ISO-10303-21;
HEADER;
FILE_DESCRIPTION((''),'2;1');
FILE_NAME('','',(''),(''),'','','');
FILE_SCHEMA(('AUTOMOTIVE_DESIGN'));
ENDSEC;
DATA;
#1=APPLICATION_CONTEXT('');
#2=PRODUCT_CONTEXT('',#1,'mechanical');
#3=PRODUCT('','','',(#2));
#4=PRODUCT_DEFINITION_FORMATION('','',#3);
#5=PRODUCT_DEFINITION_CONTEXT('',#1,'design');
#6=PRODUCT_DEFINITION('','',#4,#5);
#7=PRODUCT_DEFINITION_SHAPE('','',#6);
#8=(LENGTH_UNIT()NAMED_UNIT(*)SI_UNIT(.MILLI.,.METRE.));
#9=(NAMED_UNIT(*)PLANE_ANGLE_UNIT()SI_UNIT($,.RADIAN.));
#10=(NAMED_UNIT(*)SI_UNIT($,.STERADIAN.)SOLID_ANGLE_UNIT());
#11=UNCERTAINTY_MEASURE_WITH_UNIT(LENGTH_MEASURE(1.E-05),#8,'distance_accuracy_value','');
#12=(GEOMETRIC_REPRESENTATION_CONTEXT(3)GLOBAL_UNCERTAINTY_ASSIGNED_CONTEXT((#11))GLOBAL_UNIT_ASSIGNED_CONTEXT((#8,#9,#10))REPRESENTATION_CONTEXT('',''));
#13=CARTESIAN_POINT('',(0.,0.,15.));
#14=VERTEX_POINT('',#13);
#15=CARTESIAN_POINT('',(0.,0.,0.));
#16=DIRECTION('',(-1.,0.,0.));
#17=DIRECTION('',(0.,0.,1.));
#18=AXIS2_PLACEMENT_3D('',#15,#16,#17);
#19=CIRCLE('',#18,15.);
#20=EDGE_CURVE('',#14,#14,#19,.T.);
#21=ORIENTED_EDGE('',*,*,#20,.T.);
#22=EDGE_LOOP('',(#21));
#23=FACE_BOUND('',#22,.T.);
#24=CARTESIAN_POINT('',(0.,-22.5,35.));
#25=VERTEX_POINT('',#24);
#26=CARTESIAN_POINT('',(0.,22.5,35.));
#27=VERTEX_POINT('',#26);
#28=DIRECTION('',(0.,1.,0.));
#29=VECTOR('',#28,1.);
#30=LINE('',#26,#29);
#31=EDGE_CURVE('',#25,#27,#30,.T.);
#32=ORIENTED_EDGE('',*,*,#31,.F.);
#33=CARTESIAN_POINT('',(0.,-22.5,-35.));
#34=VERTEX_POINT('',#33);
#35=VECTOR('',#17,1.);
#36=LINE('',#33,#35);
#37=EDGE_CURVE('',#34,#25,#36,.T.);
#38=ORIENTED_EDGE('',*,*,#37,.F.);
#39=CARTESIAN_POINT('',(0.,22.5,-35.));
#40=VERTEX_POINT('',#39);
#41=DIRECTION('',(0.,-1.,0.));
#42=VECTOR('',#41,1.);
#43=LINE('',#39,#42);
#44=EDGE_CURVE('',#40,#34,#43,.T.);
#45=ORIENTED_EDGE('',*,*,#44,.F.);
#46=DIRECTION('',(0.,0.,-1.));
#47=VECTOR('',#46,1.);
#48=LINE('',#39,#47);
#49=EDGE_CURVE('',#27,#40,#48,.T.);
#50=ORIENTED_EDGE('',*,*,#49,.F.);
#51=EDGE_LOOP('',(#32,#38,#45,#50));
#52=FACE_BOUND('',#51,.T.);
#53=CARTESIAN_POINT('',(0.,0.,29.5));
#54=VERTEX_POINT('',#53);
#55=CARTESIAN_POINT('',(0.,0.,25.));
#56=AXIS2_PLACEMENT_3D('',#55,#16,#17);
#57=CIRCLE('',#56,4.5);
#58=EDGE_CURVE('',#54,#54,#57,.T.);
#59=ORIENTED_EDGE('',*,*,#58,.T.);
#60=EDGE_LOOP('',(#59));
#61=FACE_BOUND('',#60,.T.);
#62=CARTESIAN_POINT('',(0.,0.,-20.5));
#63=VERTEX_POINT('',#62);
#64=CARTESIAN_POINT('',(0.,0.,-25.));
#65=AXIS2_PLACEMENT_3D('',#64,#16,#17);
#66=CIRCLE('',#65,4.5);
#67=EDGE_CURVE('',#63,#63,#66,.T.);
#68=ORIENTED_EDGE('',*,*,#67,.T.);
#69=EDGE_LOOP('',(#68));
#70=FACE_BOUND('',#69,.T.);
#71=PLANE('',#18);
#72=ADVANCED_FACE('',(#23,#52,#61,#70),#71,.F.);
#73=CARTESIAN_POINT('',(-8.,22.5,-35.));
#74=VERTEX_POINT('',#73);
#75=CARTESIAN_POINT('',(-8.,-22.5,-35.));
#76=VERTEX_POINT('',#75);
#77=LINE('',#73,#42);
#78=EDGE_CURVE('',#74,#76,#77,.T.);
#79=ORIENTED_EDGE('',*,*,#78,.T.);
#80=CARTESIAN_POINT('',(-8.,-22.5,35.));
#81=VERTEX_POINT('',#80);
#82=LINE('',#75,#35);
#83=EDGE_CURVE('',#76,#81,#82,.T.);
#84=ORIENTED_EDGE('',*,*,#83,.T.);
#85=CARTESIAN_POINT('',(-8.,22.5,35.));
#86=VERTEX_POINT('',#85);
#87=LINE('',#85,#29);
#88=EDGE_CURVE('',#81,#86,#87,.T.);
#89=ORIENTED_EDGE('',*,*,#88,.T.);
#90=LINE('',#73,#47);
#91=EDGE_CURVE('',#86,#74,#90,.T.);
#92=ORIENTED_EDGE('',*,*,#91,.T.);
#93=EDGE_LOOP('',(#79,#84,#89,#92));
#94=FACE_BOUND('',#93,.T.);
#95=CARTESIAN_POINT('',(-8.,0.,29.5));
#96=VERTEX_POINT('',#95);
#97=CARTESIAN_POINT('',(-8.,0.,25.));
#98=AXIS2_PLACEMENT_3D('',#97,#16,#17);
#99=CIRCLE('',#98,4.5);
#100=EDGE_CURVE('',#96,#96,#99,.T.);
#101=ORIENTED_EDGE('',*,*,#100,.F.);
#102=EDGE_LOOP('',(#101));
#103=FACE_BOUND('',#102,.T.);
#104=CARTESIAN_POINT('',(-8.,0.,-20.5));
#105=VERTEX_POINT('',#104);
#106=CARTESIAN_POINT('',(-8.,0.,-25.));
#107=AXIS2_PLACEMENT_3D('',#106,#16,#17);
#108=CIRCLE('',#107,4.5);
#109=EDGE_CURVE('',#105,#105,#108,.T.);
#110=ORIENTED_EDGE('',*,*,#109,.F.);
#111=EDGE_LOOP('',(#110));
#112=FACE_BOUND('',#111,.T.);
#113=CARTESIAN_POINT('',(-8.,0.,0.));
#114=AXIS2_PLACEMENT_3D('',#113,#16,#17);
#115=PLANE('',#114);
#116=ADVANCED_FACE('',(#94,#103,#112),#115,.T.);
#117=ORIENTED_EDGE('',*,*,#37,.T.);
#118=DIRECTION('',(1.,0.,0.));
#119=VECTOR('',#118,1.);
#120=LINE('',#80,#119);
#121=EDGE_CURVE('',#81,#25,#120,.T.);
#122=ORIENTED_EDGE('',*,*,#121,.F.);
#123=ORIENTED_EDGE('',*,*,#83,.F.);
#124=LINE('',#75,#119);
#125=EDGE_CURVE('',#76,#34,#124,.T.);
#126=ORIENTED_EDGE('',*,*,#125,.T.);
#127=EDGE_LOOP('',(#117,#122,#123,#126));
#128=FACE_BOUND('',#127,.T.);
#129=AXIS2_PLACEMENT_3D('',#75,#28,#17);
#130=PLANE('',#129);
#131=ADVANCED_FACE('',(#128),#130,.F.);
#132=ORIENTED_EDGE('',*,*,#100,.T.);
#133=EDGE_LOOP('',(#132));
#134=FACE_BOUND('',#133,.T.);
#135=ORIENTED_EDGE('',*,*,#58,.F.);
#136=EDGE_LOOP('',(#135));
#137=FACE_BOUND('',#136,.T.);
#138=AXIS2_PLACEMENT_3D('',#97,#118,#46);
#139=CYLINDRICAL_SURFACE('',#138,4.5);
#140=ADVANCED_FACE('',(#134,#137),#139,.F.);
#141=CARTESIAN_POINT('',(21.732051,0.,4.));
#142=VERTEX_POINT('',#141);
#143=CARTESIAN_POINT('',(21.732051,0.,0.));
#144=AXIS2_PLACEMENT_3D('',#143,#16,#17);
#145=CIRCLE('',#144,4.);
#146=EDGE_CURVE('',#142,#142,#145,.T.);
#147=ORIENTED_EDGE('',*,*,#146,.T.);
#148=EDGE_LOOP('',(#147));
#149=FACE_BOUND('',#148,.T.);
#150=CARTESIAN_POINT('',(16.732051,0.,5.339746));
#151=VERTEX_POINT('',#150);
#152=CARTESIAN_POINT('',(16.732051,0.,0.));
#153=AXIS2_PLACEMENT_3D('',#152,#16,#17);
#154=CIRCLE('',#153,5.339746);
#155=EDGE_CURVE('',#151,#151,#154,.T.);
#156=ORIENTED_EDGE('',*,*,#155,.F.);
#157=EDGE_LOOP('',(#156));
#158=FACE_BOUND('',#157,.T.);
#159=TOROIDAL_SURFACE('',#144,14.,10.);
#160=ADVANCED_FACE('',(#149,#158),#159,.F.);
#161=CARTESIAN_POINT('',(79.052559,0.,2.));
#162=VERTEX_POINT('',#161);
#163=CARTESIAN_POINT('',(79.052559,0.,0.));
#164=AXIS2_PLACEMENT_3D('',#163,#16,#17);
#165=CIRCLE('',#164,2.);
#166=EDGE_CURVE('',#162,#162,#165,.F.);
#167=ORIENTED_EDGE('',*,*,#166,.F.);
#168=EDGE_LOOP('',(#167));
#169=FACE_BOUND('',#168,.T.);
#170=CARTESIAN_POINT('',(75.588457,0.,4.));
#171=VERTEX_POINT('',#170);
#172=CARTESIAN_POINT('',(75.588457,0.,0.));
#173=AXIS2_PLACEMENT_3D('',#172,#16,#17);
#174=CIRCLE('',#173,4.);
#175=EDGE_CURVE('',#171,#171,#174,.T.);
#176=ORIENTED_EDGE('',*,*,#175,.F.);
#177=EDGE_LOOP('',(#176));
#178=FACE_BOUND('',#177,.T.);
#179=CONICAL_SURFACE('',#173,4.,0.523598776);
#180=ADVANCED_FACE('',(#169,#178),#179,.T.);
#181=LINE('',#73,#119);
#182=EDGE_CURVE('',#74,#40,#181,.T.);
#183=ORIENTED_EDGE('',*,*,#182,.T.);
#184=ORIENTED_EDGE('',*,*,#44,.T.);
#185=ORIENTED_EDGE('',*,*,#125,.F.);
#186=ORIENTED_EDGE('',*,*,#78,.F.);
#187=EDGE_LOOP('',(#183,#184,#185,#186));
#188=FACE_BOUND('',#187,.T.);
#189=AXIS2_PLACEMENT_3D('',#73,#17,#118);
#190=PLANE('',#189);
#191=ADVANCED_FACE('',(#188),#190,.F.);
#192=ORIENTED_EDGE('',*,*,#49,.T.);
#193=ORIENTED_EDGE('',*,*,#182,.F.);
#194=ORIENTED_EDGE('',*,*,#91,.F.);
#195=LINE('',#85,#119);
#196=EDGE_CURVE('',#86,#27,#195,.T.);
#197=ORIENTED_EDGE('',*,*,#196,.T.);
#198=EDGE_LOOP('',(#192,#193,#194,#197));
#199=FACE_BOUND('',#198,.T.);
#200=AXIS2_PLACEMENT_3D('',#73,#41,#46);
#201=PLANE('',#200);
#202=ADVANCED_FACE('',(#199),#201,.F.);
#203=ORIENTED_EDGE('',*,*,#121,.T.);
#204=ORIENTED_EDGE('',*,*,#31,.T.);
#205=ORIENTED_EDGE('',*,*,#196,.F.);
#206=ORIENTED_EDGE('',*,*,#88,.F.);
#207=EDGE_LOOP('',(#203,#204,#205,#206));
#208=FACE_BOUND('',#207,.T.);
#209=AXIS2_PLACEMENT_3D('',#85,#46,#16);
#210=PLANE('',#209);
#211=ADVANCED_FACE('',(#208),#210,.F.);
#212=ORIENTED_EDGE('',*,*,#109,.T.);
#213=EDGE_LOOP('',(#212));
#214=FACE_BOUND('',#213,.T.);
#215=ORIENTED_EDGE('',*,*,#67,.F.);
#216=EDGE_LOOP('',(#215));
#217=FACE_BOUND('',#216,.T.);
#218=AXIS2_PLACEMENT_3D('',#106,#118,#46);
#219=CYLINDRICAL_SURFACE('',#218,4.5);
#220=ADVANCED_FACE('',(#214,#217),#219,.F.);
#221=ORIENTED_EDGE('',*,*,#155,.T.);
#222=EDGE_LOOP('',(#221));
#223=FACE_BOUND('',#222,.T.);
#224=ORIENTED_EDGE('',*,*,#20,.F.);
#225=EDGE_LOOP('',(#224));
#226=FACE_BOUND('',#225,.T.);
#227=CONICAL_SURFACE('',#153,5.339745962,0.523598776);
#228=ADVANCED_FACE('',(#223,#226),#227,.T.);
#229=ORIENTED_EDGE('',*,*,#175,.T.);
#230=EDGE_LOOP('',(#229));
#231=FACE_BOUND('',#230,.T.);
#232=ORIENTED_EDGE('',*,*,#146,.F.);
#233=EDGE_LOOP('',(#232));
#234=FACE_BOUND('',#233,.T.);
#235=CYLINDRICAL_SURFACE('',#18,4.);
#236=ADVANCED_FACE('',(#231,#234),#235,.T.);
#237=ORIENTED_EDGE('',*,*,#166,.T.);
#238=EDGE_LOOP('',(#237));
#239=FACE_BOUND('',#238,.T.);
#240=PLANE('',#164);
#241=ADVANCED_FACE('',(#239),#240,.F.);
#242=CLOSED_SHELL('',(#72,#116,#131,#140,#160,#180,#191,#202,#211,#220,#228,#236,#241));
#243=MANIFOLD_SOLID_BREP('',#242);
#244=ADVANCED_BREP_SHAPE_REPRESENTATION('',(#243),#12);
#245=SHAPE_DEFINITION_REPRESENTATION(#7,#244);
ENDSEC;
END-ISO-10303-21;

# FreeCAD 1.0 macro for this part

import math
import FreeCAD as App
import Part
import Sketcher
Q = App.Units.Quantity


def edges_at(feature, points):
    """Names of the edges that pass closest to the given points."""
    edges = feature.Shape.Edges
    near = lambda p: min(range(len(edges)), key=lambda i: edges[i].distToShape(Part.Vertex(*p))[0])
    return sorted({f"Edge{near(p) + 1}" for p in points})

doc = App.newDocument("Part")
body = doc.addObject("PartDesign::Body", "Body")

# Sketch on XY plane
sketch1 = body.newObject("Sketcher::SketchObject", "Sketch")
sketch1.AttachmentSupport = (doc.getObject("XY_Plane"), [""])
sketch1.MapMode = "FlatFace"
sketch1.addGeometry([
    Part.LineSegment(App.Vector(79.1, 0, 0), App.Vector(79.1, 4, 0)),  # 0
    Part.LineSegment(App.Vector(79.1, 4, 0), App.Vector(21.7, 4, 0)),  # 1
    Part.ArcOfCircle(Part.Circle(App.Vector(21.7, 14, 0), App.Vector(0, 0, 1), 10), math.radians(-120), math.radians(-90)),  # 2
    Part.LineSegment(App.Vector(16.7, 5.3, 0), App.Vector(0, 15, 0)),  # 3
    Part.LineSegment(App.Vector(0, 15, 0), App.Vector(0, 0, 0)),  # 4
    Part.LineSegment(App.Vector(0, 0, 0), App.Vector(79.1, 0, 0)),  # 5
], False)
sketch1.addConstraint([
    Sketcher.Constraint("Coincident", 0, 2, 1, 1),
    Sketcher.Constraint("Tangent", 1, 2, 2, 2),
    Sketcher.Constraint("Tangent", 2, 1, 3, 1),
    Sketcher.Constraint("Coincident", 3, 2, 4, 1),
    Sketcher.Constraint("Coincident", 4, 2, 5, 1),
    Sketcher.Constraint("Coincident", 5, 2, 0, 1),
    Sketcher.Constraint("Vertical", 0),
    Sketcher.Constraint("Horizontal", 1),
    Sketcher.Constraint("Vertical", 4),
    Sketcher.Constraint("Horizontal", 5),
    Sketcher.Constraint("Coincident", 4, 2, -1, 1),
    Sketcher.Constraint("Radius", 2, 10.0),
    Sketcher.Constraint("DistanceY", 0, 1, 0, 2, 4.0),
    Sketcher.Constraint("DistanceY", 4, 2, 4, 1, 15.0),
    Sketcher.Constraint("Angle", 3, Q("150 deg")),
    Sketcher.Constraint("DistanceX", 1, 2, 1, 1, 57.320508),
])
revolution = body.newObject("PartDesign::Revolution", "Revolution")
revolution.Profile = sketch1
revolution.ReferenceAxis = (sketch1, ["H_Axis"])
revolution.Angle = 360
doc.recompute()

chamfer = body.newObject("PartDesign::Chamfer", "Chamfer")
chamfer.Base = (revolution, edges_at(revolution, [(79.053, -4, 0)]))
chamfer.ChamferType = "Two distances"
chamfer.Size = 2
chamfer.Size2 = 3.464102

# Sketch on YZ plane
sketch2 = body.newObject("Sketcher::SketchObject", "Sketch001")
sketch2.AttachmentSupport = (doc.getObject("YZ_Plane"), [""])
sketch2.MapMode = "FlatFace"
sketch2.addGeometry([
    Part.LineSegment(App.Vector(22.5, -35, 0), App.Vector(-22.5, -35, 0)),  # 0
    Part.LineSegment(App.Vector(-22.5, -35, 0), App.Vector(-22.5, 35, 0)),  # 1
    Part.LineSegment(App.Vector(-22.5, 35, 0), App.Vector(22.5, 35, 0)),  # 2
    Part.LineSegment(App.Vector(22.5, 35, 0), App.Vector(22.5, -35, 0)),  # 3
    Part.Circle(App.Vector(0, -25, 0), App.Vector(0, 0, 1), 4.5),  # 4
    Part.Circle(App.Vector(0, 25, 0), App.Vector(0, 0, 1), 4.5),  # 5
], False)
sketch2.addConstraint([
    Sketcher.Constraint("Coincident", 0, 2, 1, 1),
    Sketcher.Constraint("Coincident", 1, 2, 2, 1),
    Sketcher.Constraint("Coincident", 2, 2, 3, 1),
    Sketcher.Constraint("Coincident", 3, 2, 0, 1),
    Sketcher.Constraint("Horizontal", 0),
    Sketcher.Constraint("Vertical", 1),
    Sketcher.Constraint("Horizontal", 2),
    Sketcher.Constraint("Vertical", 3),
    Sketcher.Constraint("Equal", 4, 5),
    Sketcher.Constraint("Symmetric", 4, 3, 5, 3, -1, 1),
    Sketcher.Constraint("Symmetric", 0, 2, 2, 2, -1, 1),
    Sketcher.Constraint("PointOnObject", 4, 3, -2),
    Sketcher.Constraint("Diameter", 4, 9.0),
    Sketcher.Constraint("DistanceX", 0, 2, 0, 1, 45.0),
    Sketcher.Constraint("DistanceY", 1, 1, 1, 2, 70.0),
    Sketcher.Constraint("DistanceY", 4, 3, -1, 1, 25.0),
])
pad1 = body.newObject("PartDesign::Pad", "Pad")
pad1.Profile = sketch2
pad1.Length = 8
pad1.Reversed = True

doc.recompute()
